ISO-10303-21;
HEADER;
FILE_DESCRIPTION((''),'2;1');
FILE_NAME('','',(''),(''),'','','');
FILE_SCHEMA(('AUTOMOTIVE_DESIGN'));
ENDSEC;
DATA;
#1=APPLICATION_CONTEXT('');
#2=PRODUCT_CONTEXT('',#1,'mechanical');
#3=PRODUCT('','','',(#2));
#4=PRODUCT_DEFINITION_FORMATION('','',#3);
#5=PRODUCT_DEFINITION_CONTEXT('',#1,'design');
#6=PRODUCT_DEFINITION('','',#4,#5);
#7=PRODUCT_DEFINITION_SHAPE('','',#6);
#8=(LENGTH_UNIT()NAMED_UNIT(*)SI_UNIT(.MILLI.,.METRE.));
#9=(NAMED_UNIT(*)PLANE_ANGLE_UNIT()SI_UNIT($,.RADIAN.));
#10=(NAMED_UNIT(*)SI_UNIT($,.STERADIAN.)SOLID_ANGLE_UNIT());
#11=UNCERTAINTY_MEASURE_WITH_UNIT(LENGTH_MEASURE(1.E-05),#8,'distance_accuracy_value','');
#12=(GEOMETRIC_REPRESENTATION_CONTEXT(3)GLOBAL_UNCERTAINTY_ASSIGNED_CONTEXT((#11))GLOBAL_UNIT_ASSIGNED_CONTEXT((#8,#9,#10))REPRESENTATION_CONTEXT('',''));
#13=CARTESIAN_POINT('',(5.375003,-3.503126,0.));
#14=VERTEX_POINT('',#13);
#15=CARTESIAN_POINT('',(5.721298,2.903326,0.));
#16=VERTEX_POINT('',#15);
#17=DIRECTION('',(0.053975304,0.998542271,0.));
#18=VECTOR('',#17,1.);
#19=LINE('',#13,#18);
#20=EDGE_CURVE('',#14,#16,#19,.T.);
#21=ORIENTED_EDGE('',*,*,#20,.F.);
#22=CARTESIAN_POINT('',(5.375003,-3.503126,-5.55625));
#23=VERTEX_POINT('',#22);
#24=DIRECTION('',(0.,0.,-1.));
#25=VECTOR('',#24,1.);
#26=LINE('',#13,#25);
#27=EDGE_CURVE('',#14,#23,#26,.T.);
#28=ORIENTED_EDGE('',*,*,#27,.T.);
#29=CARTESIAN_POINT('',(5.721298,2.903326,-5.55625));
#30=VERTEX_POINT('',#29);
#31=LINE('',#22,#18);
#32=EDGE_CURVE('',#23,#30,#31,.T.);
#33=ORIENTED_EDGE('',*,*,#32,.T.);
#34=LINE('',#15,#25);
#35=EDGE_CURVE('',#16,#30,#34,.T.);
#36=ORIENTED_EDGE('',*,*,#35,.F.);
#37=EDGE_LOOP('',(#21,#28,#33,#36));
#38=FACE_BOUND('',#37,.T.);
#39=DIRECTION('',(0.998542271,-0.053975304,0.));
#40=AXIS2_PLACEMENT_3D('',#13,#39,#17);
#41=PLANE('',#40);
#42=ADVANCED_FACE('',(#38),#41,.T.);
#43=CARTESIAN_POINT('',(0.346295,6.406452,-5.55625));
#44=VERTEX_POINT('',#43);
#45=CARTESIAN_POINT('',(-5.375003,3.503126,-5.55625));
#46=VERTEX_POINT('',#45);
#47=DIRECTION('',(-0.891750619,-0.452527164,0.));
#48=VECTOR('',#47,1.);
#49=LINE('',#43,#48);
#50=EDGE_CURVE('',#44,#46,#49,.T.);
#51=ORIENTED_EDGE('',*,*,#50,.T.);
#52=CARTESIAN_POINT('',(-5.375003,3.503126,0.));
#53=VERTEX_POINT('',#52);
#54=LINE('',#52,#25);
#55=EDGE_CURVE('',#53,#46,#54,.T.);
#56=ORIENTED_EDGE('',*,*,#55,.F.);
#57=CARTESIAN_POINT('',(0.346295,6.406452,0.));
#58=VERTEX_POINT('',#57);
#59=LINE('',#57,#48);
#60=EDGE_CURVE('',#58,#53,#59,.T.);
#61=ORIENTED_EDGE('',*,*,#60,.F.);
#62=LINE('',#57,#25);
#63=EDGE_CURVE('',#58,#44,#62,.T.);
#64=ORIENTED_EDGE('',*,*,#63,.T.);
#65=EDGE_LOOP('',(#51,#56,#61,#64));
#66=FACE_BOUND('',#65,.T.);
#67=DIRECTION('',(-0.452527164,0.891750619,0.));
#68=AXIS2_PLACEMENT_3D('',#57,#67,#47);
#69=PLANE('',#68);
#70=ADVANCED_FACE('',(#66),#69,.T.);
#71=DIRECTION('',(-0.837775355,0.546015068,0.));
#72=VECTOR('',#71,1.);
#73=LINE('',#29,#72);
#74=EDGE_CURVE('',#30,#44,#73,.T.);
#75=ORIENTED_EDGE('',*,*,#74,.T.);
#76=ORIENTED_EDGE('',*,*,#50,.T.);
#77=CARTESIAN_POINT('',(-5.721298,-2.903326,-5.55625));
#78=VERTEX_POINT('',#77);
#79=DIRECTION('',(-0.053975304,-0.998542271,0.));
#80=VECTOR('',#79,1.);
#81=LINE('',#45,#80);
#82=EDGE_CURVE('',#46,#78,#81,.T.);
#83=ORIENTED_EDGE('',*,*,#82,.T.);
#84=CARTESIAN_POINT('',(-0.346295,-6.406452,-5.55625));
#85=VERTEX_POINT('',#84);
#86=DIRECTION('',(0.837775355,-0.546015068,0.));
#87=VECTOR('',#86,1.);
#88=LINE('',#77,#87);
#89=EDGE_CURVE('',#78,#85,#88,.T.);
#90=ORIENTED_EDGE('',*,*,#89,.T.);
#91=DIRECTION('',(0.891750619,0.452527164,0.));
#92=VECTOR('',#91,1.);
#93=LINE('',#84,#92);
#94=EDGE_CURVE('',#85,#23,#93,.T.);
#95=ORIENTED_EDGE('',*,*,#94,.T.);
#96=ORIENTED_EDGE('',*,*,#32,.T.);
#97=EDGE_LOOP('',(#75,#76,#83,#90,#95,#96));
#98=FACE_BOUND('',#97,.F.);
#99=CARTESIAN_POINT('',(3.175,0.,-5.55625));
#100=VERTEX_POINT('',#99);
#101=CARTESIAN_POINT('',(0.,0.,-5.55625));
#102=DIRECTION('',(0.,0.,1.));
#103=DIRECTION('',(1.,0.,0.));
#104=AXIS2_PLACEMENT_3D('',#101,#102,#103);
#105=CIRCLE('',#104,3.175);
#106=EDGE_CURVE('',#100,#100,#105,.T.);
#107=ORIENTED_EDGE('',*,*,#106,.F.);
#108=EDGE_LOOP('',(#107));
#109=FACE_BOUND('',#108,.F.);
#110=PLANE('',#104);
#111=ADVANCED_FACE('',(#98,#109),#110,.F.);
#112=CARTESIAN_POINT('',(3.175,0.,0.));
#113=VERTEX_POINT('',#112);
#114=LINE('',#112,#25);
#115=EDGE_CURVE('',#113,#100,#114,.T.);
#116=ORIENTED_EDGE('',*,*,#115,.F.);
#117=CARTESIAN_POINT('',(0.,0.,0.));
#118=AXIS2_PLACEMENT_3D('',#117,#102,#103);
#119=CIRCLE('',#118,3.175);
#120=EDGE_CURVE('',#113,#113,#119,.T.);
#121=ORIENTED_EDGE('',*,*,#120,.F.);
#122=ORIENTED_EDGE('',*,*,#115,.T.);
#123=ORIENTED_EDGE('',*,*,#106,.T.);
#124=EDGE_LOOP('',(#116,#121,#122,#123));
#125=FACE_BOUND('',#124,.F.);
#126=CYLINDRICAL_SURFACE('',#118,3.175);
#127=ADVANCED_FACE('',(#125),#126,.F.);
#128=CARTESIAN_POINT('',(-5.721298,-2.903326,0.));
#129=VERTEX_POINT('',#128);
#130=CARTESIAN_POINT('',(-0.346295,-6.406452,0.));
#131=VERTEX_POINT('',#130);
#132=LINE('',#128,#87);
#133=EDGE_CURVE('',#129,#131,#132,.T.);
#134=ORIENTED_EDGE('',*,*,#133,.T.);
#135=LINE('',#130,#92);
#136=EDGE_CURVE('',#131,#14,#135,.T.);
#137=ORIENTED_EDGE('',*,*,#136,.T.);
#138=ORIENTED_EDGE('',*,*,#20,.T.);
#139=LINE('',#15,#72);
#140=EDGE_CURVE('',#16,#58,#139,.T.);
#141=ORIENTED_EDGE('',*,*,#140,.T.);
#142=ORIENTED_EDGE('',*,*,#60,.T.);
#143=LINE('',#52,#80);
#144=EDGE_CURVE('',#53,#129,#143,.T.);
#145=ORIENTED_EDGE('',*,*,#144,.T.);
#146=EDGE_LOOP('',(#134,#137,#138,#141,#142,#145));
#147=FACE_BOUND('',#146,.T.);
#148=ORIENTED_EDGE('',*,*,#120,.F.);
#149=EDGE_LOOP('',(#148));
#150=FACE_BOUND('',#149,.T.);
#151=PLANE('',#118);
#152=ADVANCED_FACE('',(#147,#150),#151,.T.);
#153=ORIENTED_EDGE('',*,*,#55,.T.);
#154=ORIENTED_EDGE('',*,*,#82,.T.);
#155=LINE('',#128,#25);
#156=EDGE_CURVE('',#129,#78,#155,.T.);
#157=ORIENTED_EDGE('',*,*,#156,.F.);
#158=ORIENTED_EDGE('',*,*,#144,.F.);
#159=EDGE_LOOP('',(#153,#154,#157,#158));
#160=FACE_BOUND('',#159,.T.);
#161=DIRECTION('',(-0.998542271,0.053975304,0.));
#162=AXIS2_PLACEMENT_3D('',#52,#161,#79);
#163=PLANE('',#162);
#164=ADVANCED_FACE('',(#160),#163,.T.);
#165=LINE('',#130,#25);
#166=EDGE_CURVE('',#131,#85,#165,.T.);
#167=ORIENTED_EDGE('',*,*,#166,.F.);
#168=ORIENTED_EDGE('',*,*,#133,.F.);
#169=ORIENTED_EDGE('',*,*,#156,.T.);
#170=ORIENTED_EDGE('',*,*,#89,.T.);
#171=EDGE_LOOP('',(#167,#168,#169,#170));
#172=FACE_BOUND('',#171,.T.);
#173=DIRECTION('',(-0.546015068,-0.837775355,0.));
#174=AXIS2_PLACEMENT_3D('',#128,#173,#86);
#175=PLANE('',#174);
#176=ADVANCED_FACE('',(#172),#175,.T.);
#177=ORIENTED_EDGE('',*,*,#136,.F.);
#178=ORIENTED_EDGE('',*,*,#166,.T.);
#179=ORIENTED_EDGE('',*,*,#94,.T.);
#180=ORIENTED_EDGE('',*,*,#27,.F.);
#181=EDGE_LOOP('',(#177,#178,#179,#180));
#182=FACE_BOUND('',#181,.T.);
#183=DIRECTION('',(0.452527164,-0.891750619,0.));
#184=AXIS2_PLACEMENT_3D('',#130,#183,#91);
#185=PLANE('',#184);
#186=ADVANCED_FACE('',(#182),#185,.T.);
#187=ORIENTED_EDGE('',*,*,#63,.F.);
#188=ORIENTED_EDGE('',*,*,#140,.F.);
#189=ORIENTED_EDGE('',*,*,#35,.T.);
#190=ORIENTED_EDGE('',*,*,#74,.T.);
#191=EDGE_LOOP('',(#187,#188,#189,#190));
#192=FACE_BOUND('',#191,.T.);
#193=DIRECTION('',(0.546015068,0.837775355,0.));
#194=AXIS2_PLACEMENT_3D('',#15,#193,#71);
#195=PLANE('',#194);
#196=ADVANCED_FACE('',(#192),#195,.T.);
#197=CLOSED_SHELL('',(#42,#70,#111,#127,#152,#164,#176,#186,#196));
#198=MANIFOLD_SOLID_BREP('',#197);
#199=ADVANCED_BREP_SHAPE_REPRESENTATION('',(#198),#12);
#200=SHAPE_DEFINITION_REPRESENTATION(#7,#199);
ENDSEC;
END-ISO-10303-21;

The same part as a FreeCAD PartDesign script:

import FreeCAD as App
import Part
import Sketcher
Q = App.Units.Quantity


def add_polygon(sketch, points):
    """Adds a closed chain of lines whose ends are joined by coincident constraints."""
    first, n = sketch.GeometryCount, len(points)
    for a, b in zip(points, points[1:] + points[:1]):
        sketch.addGeometry(Part.LineSegment(App.Vector(*a, 0), App.Vector(*b, 0)), False)
    for i in range(n):
        sketch.addConstraint(Sketcher.Constraint("Coincident", first + i, 2, first + (i + 1) % n, 1))

doc = App.newDocument("Part")
body = doc.addObject("PartDesign::Body", "Body")

# Sketch on XY plane
sketch1 = body.newObject("Sketcher::SketchObject", "Sketch")
sketch1.AttachmentSupport = (doc.getObject("XY_Plane"), [""])
sketch1.MapMode = "FlatFace"
add_polygon(sketch1, [(-0.346295, -6.406452), (5.375003, -3.503126), (5.721298, 2.903326), (0.346295, 6.406452), (-5.375003, 3.503126), (-5.721298, -2.903326)])  # lines 0-5
sketch1.addConstraint([
    Sketcher.Constraint("DistanceX", 3, 2, 2, 2, Q("5.721298 mm")),
    Sketcher.Constraint("DistanceX", 3, 2, 1, 2, Q("11.096301 mm")),
    Sketcher.Constraint("DistanceY", 1, 2, 3, 2, Q("0.5998 mm")),
    Sketcher.Constraint("DistanceX", 4, 2, 0, 2, Q("11.096301 mm")),
    Sketcher.Constraint("DistanceY", 0, 2, 4, 2, Q("0.5998 mm")),
    Sketcher.Constraint("DistanceX", 5, 2, 0, 2, Q("5.721298 mm")),
    Sketcher.Constraint("DistanceY", -1, 1, 2, 2, Q("6.406452 mm")),
    Sketcher.Constraint("DistanceY", 5, 2, -1, 1, Q("6.406452 mm")),
    Sketcher.Constraint("DistanceY", 0, 2, 1, 2, Q("6.406452 mm")),
    Sketcher.Constraint("DistanceX", 5, 2, 2, 2, Q("0.69259 mm")),
    Sketcher.Constraint("Distance", 0, Q("6.415805 mm")),
    Sketcher.Constraint("DistanceX", -1, 1, 0, 2, Q("5.375003 mm")),
])
pad1 = body.newObject("PartDesign::Pad", "Pad")
pad1.Profile = sketch1
pad1.Length = Q("0.21875 in")
pad1.Reversed = True

# Sketch on XY plane
sketch2 = body.newObject("Sketcher::SketchObject", "Sketch001")
sketch2.AttachmentSupport = (doc.getObject("XY_Plane"), [""])
sketch2.MapMode = "FlatFace"
sketch2.addGeometry(Part.Circle(App.Vector(0, 0, 0), App.Vector(0, 0, 1), 3.175), False)
sketch2.addConstraint([
    Sketcher.Constraint("Coincident", 0, 3, -1, 1),
    Sketcher.Constraint("Diameter", 0, Q("0.25 in")),
])
pocket1 = body.newObject("PartDesign::Pocket", "Pocket")
pocket1.Profile = sketch2
pocket1.Type = "ThroughAll"

doc.recompute()
